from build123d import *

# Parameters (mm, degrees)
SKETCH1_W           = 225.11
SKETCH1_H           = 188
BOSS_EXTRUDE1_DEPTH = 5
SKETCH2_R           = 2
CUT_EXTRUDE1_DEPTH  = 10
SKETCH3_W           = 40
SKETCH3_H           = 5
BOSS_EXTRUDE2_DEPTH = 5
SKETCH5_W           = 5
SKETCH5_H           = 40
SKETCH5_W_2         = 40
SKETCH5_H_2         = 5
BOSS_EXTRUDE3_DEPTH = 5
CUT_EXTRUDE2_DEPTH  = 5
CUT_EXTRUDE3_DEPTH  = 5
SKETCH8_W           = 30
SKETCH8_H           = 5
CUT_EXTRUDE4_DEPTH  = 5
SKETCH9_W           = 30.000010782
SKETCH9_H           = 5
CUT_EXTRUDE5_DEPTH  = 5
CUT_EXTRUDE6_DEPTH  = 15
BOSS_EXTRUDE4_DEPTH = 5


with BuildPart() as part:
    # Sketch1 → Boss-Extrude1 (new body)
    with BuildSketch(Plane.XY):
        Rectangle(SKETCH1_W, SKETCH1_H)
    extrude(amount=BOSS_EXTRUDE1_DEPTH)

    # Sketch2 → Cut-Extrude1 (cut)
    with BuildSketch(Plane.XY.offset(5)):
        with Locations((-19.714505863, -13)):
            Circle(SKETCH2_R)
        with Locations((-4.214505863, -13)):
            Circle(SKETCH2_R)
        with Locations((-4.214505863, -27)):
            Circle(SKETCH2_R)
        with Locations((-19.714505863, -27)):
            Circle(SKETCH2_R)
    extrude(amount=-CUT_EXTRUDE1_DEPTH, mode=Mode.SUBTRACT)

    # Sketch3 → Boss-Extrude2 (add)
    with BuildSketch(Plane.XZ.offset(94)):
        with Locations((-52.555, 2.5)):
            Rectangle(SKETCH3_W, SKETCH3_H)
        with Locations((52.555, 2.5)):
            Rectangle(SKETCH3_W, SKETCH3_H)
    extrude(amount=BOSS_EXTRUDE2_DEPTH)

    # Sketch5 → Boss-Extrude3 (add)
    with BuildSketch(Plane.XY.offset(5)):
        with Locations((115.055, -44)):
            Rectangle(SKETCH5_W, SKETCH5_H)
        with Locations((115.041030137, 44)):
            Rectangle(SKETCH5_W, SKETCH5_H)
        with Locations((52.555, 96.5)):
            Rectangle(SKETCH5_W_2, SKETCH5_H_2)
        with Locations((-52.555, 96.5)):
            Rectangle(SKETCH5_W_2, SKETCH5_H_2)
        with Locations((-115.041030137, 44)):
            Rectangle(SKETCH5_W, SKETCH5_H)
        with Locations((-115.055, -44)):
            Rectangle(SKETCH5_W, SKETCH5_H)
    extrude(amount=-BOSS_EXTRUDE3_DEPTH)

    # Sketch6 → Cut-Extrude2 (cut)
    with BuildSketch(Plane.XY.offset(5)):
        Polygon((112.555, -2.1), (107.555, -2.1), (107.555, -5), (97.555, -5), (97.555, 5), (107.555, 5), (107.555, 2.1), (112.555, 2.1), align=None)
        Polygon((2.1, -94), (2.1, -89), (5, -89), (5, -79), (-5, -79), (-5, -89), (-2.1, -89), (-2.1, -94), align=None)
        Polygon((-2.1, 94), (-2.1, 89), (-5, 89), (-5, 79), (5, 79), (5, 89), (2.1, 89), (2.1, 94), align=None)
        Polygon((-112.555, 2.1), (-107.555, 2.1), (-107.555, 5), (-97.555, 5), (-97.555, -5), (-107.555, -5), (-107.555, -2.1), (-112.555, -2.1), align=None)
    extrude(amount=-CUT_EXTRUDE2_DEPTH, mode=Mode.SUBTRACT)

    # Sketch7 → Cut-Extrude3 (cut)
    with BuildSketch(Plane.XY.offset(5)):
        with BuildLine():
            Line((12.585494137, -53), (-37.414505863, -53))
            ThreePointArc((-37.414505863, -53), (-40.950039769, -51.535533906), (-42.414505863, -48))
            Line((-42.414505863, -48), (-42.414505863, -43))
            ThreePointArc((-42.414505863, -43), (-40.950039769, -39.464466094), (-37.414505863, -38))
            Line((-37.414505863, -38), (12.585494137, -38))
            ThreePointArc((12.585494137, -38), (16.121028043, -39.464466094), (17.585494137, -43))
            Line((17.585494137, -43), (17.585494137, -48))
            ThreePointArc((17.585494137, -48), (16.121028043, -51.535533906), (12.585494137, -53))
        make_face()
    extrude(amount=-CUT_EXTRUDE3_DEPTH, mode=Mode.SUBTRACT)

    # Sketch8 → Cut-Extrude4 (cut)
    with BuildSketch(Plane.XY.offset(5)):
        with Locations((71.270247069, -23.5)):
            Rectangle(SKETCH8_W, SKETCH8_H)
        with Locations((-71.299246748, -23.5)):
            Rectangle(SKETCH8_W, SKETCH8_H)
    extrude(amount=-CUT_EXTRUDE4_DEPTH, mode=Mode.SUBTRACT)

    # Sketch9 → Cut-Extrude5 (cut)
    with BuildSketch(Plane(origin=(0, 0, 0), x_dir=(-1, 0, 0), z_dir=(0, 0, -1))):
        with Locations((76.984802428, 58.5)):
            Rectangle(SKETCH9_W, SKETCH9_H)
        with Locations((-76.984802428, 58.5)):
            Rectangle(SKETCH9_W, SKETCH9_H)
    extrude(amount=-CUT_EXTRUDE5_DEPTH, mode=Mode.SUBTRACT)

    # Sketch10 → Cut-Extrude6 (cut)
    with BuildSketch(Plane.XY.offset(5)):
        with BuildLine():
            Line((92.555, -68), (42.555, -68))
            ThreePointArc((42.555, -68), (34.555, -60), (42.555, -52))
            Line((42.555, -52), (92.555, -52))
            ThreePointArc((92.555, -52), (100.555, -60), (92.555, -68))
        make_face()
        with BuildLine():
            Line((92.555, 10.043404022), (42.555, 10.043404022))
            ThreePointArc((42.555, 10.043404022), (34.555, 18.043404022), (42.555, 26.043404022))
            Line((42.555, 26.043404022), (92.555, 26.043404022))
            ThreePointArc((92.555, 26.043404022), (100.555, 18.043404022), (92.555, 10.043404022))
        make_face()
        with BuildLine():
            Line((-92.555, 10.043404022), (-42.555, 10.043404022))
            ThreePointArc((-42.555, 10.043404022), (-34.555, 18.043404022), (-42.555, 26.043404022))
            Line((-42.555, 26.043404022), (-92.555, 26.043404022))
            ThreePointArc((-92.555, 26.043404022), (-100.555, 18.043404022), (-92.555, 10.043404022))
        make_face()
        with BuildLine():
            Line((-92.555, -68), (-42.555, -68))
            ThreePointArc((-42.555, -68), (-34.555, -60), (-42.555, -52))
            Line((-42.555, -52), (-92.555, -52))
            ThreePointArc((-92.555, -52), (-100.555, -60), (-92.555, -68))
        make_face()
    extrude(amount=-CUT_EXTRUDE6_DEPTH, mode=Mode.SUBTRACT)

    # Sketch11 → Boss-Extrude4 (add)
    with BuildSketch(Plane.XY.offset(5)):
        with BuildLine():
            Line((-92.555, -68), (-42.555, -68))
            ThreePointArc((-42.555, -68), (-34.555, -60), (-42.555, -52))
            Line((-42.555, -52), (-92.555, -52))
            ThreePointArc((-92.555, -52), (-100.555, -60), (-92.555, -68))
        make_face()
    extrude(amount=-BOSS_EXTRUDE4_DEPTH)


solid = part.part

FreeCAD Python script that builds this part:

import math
import FreeCAD as App
import Part
import Sketcher

V = App.Vector

doc = App.newDocument("Part")
params = doc.addObject("Spreadsheet::Sheet", "Params")
for row, (alias, value) in enumerate([
    ("sketch1_height", "188 mm"),
    ("sketch1_width", "225.11 mm"),
    ("pad1_length", "5 mm"),
    ("sketch2_diameter", "4 mm"),
    ("pocket1_length", "10 mm"),
    ("sketch3_width", "40 mm"),
    ("sketch3_height", "5 mm"),
    ("pad2_length", "5 mm"),
    ("sketch4_width", "5 mm"),
    ("sketch4_width2", "40 mm"),
    ("pad3_length", "5 mm"),
    ("sketch5_width", "5 mm"),
    ("sketch5_width2", "10 mm"),
    ("sketch5_width3", "2.9 mm"),
    ("pocket2_length", "5 mm"),
    ("sketch6_radius", "5 mm"),
    ("sketch6_width", "50 mm"),
    ("sketch6_height", "5 mm"),
    ("pocket3_length", "5 mm"),
    ("sketch7_width", "30 mm"),
    ("sketch7_height", "5 mm"),
    ("pocket4_length", "5 mm"),
    ("sketch8_height", "5 mm"),
    ("pocket5_length", "5 mm"),
    ("sketch9_radius", "8 mm"),
    ("sketch9_width", "50 mm"),
    ("pocket6_length", "15 mm"),
    ("sketch10_radius", "8 mm"),
    ("sketch10_width", "50 mm"),
    ("pad4_length", "5 mm"),
], start=1):
    params.set(f"A{row}", alias)
    params.set(f"B{row}", "=" + value)
    params.setAlias(f"B{row}", alias)

body = doc.addObject("PartDesign::Body", "Body")

# Sketch on XY plane
sketch1 = body.newObject("Sketcher::SketchObject", "Sketch")
sketch1.AttachmentSupport = (doc.getObject("XY_Plane"), [""])
sketch1.MapMode = "FlatFace"
sketch1.addGeometry([
    Part.LineSegment(V(-112.555, 94, 0), V(-112.555, -94, 0)),
    Part.LineSegment(V(-112.555, -94, 0), V(112.555, -94, 0)),
    Part.LineSegment(V(112.555, -94, 0), V(112.555, 94, 0)),
    Part.LineSegment(V(112.555, 94, 0), V(-112.555, 94, 0)),
], False)
sketch1.addConstraint([
    Sketcher.Constraint("Coincident", 0, 2, 1, 1),
    Sketcher.Constraint("Coincident", 1, 2, 2, 1),
    Sketcher.Constraint("Coincident", 2, 2, 3, 1),
    Sketcher.Constraint("Coincident", 3, 2, 0, 1),
    Sketcher.Constraint("Vertical", 0),
    Sketcher.Constraint("Horizontal", 1),
    Sketcher.Constraint("Vertical", 2),
    Sketcher.Constraint("Horizontal", 3),
    Sketcher.Constraint("Symmetric", 0, 2, 2, 2, -1, 1),
    Sketcher.Constraint("DistanceY", 0, 2, 0, 1, 188.0),
    Sketcher.Constraint("DistanceX", 1, 1, 1, 2, 225.11),
])
sketch1.setExpression("Constraints[9]", "Params.sketch1_height")
sketch1.setExpression("Constraints[10]", "Params.sketch1_width")
pad1 = body.newObject("PartDesign::Pad", "Pad")
pad1.Profile = sketch1
pad1.setExpression("Length", "Params.pad1_length")

# Sketch on XY plane
sketch2 = body.newObject("Sketcher::SketchObject", "Sketch001")
sketch2.AttachmentSupport = (doc.getObject("XY_Plane"), [""])
sketch2.MapMode = "FlatFace"
sketch2.AttachmentOffset = App.Placement(V(0, 0, 5), App.Rotation())
sketch2.addGeometry([
    Part.Circle(V(-19.714506, -13, 0), V(0, 0, 1), 2),
    Part.Circle(V(-4.214506, -13, 0), V(0, 0, 1), 2),
    Part.Circle(V(-4.214506, -27, 0), V(0, 0, 1), 2),
    Part.Circle(V(-19.714506, -27, 0), V(0, 0, 1), 2),
], False)
sketch2.addConstraint([
    Sketcher.Constraint("Equal", 0, 1),
    Sketcher.Constraint("Equal", 1, 2),
    Sketcher.Constraint("Equal", 2, 3),
    Sketcher.Constraint("Horizontal", 0, 3, 1, 3),
    Sketcher.Constraint("Horizontal", 2, 3, 3, 3),
    Sketcher.Constraint("Vertical", 1, 3, 2, 3),
    Sketcher.Constraint("Vertical", 0, 3, 3, 3),
    Sketcher.Constraint("Diameter", 0, 4.0),
    Sketcher.Constraint("DistanceY", 0, 3, -1, 1, 13.0),
    Sketcher.Constraint("DistanceY", 2, 3, -1, 1, 27.0),
    Sketcher.Constraint("DistanceX", 0, 3, 1, 3, 15.5),
    Sketcher.Constraint("DistanceX", 0, 3, -1, 1, 19.714506),
])
sketch2.setExpression("Constraints[7]", "Params.sketch2_diameter")
pocket1 = body.newObject("PartDesign::Pocket", "Pocket")
pocket1.Profile = sketch2
pocket1.setExpression("Length", "Params.pocket1_length")

# Sketch on XZ plane
sketch3 = body.newObject("Sketcher::SketchObject", "Sketch002")
sketch3.AttachmentSupport = (doc.getObject("XZ_Plane"), [""])
sketch3.MapMode = "FlatFace"
sketch3.AttachmentOffset = App.Placement(V(0, 0, 94), App.Rotation())
sketch3.addGeometry([
    Part.LineSegment(V(-72.555, 5, 0), V(-72.555, 0, 0)),  # 0
    Part.LineSegment(V(-72.555, 0, 0), V(-32.555, 0, 0)),  # 1
    Part.LineSegment(V(-32.555, 0, 0), V(-32.555, 5, 0)),  # 2
    Part.LineSegment(V(-32.555, 5, 0), V(-72.555, 5, 0)),  # 3
    Part.LineSegment(V(32.555, 5, 0), V(32.555, 0, 0)),  # 4
    Part.LineSegment(V(32.555, 0, 0), V(72.555, 0, 0)),  # 5
    Part.LineSegment(V(72.555, 0, 0), V(72.555, 5, 0)),  # 6
    Part.LineSegment(V(72.555, 5, 0), V(32.555, 5, 0)),  # 7
], False)
sketch3.addConstraint([
    Sketcher.Constraint("Coincident", 0, 2, 1, 1),
    Sketcher.Constraint("Coincident", 1, 2, 2, 1),
    Sketcher.Constraint("Coincident", 2, 2, 3, 1),
    Sketcher.Constraint("Coincident", 3, 2, 0, 1),
    Sketcher.Constraint("Coincident", 4, 2, 5, 1),
    Sketcher.Constraint("Coincident", 5, 2, 6, 1),
    Sketcher.Constraint("Coincident", 6, 2, 7, 1),
    Sketcher.Constraint("Coincident", 7, 2, 4, 1),
    Sketcher.Constraint("Vertical", 0),
    Sketcher.Constraint("Horizontal", 1),
    Sketcher.Constraint("Vertical", 2),
    Sketcher.Constraint("Horizontal", 3),
    Sketcher.Constraint("Vertical", 4),
    Sketcher.Constraint("Horizontal", 5),
    Sketcher.Constraint("Vertical", 6),
    Sketcher.Constraint("Horizontal", 7),
    Sketcher.Constraint("Symmetric", 1, 2, 4, 2, -1, 1),
    Sketcher.Constraint("Symmetric", 0, 2, 5, 2, -2),
    Sketcher.Constraint("Horizontal", 3, 2, 6, 2),
    Sketcher.Constraint("DistanceX", 1, 1, 1, 2, 40.0),
    Sketcher.Constraint("DistanceY", 0, 2, 0, 1, 5.0),
    Sketcher.Constraint("DistanceX", 1, 2, 4, 2, 65.11),
])
sketch3.setExpression("Constraints[19]", "Params.sketch3_width")
sketch3.setExpression("Constraints[20]", "Params.sketch3_height")
pad2 = body.newObject("PartDesign::Pad", "Pad001")
pad2.Profile = sketch3
pad2.setExpression("Length", "Params.pad2_length")

# Sketch on XY plane
sketch4 = body.newObject("Sketcher::SketchObject", "Sketch003")
sketch4.AttachmentSupport = (doc.getObject("XY_Plane"), [""])
sketch4.MapMode = "FlatFace"
sketch4.AttachmentOffset = App.Placement(V(0, 0, 5), App.Rotation())
sketch4.addGeometry([
    Part.LineSegment(V(112.555, -24, 0), V(112.555, -64, 0)),  # 0
    Part.LineSegment(V(112.555, -64, 0), V(117.555, -64, 0)),  # 1
    Part.LineSegment(V(117.555, -64, 0), V(117.555, -24, 0)),  # 2
    Part.LineSegment(V(117.555, -24, 0), V(112.555, -24, 0)),  # 3
    Part.LineSegment(V(112.54103, 64, 0), V(112.54103, 24, 0)),  # 4
    Part.LineSegment(V(112.54103, 24, 0), V(117.54103, 24, 0)),  # 5
    Part.LineSegment(V(117.54103, 24, 0), V(117.54103, 64, 0)),  # 6
    Part.LineSegment(V(117.54103, 64, 0), V(112.54103, 64, 0)),  # 7
    Part.LineSegment(V(32.555, 99, 0), V(32.555, 94, 0)),  # 8
    Part.LineSegment(V(32.555, 94, 0), V(72.555, 94, 0)),  # 9
    Part.LineSegment(V(72.555, 94, 0), V(72.555, 99, 0)),  # 10
    Part.LineSegment(V(72.555, 99, 0), V(32.555, 99, 0)),  # 11
    Part.LineSegment(V(-72.555, 99, 0), V(-72.555, 94, 0)),  # 12
    Part.LineSegment(V(-72.555, 94, 0), V(-32.555, 94, 0)),  # 13
    Part.LineSegment(V(-32.555, 94, 0), V(-32.555, 99, 0)),  # 14
    Part.LineSegment(V(-32.555, 99, 0), V(-72.555, 99, 0)),  # 15
    Part.LineSegment(V(-117.54103, 64, 0), V(-117.54103, 24, 0)),  # 16
    Part.LineSegment(V(-117.54103, 24, 0), V(-112.54103, 24, 0)),  # 17
    Part.LineSegment(V(-112.54103, 24, 0), V(-112.54103, 64, 0)),  # 18
    Part.LineSegment(V(-112.54103, 64, 0), V(-117.54103, 64, 0)),  # 19
    Part.LineSegment(V(-117.555, -24, 0), V(-117.555, -64, 0)),  # 20
    Part.LineSegment(V(-117.555, -64, 0), V(-112.555, -64, 0)),  # 21
    Part.LineSegment(V(-112.555, -64, 0), V(-112.555, -24, 0)),  # 22
    Part.LineSegment(V(-112.555, -24, 0), V(-117.555, -24, 0)),  # 23
], False)
sketch4.addConstraint([
    Sketcher.Constraint("Coincident", 0, 2, 1, 1),
    Sketcher.Constraint("Coincident", 1, 2, 2, 1),
    Sketcher.Constraint("Coincident", 2, 2, 3, 1),
    Sketcher.Constraint("Coincident", 3, 2, 0, 1),
    Sketcher.Constraint("Coincident", 4, 2, 5, 1),
    Sketcher.Constraint("Coincident", 5, 2, 6, 1),
    Sketcher.Constraint("Coincident", 6, 2, 7, 1),
    Sketcher.Constraint("Coincident", 7, 2, 4, 1),
    Sketcher.Constraint("Coincident", 8, 2, 9, 1),
    Sketcher.Constraint("Coincident", 9, 2, 10, 1),
    Sketcher.Constraint("Coincident", 10, 2, 11, 1),
    Sketcher.Constraint("Coincident", 11, 2, 8, 1),
    Sketcher.Constraint("Coincident", 12, 2, 13, 1),
    Sketcher.Constraint("Coincident", 13, 2, 14, 1),
    Sketcher.Constraint("Coincident", 14, 2, 15, 1),
    Sketcher.Constraint("Coincident", 15, 2, 12, 1),
    Sketcher.Constraint("Coincident", 16, 2, 17, 1),
    Sketcher.Constraint("Coincident", 17, 2, 18, 1),
    Sketcher.Constraint("Coincident", 18, 2, 19, 1),
    Sketcher.Constraint("Coincident", 19, 2, 16, 1),
    Sketcher.Constraint("Coincident", 20, 2, 21, 1),
    Sketcher.Constraint("Coincident", 21, 2, 22, 1),
    Sketcher.Constraint("Coincident", 22, 2, 23, 1),
    Sketcher.Constraint("Coincident", 23, 2, 20, 1),
    Sketcher.Constraint("Vertical", 0),
    Sketcher.Constraint("Horizontal", 1),
    Sketcher.Constraint("Vertical", 2),
    Sketcher.Constraint("Horizontal", 3),
    Sketcher.Constraint("Vertical", 4),
    Sketcher.Constraint("Horizontal", 5),
    Sketcher.Constraint("Vertical", 6),
    Sketcher.Constraint("Horizontal", 7),
    Sketcher.Constraint("Vertical", 8),
    Sketcher.Constraint("Horizontal", 9),
    Sketcher.Constraint("Vertical", 10),
    Sketcher.Constraint("Horizontal", 11),
    Sketcher.Constraint("Vertical", 12),
    Sketcher.Constraint("Horizontal", 13),
    Sketcher.Constraint("Vertical", 14),
    Sketcher.Constraint("Horizontal", 15),
    Sketcher.Constraint("Vertical", 16),
    Sketcher.Constraint("Horizontal", 17),
    Sketcher.Constraint("Vertical", 18),
    Sketcher.Constraint("Horizontal", 19),
    Sketcher.Constraint("Vertical", 20),
    Sketcher.Constraint("Horizontal", 21),
    Sketcher.Constraint("Vertical", 22),
    Sketcher.Constraint("Horizontal", 23),
    Sketcher.Constraint("Symmetric", 9, 2, 12, 2, -2),
    Sketcher.Constraint("Symmetric", 11, 2, 14, 2, -2),
    Sketcher.Constraint("Symmetric", 5, 2, 16, 2, -2),
    Sketcher.Constraint("Symmetric", 7, 2, 18, 2, -2),
    Sketcher.Constraint("Symmetric", 1, 2, 20, 2, -2),
    Sketcher.Constraint("Symmetric", 3, 2, 22, 2, -2),
    Sketcher.Constraint("Equal", 3, 5),
    Sketcher.Constraint("Equal", 15, 0),
    Sketcher.Constraint("Equal", 2, 4),
    Sketcher.Constraint("Equal", 23, 8),
    Sketcher.Constraint("DistanceX", 1, 1, 1, 2, 5.0),
    Sketcher.Constraint("DistanceX", 9, 1, 9, 2, 40.0),
    Sketcher.Constraint("DistanceY", 0, 2, -1, 1, 64.0),
    Sketcher.Constraint("DistanceY", -1, 1, 4, 2, 24.0),
    Sketcher.Constraint("DistanceY", -1, 1, 8, 2, 94.0),
    Sketcher.Constraint("DistanceX", 8, 2, 3, 2, 80.0),
    Sketcher.Constraint("DistanceX", 12, 2, 8, 2, 105.11),
    Sketcher.Constraint("DistanceX", -1, 1, 4, 2, 112.54103),
])
sketch4.setExpression("Constraints[58]", "Params.sketch4_width")
sketch4.setExpression("Constraints[59]", "Params.sketch4_width2")
pad3 = body.newObject("PartDesign::Pad", "Pad002")
pad3.Profile = sketch4
pad3.setExpression("Length", "Params.pad3_length")
pad3.Reversed = True

# Sketch on XY plane
sketch5 = body.newObject("Sketcher::SketchObject", "Sketch004")
sketch5.AttachmentSupport = (doc.getObject("XY_Plane"), [""])
sketch5.MapMode = "FlatFace"
sketch5.AttachmentOffset = App.Placement(V(0, 0, 5), App.Rotation())
sketch5.addGeometry([
    Part.LineSegment(V(107.555, -2.1, 0), V(112.555, -2.1, 0)),  # 0
    Part.LineSegment(V(112.555, -2.1, 0), V(112.555, 2.1, 0)),  # 1
    Part.LineSegment(V(112.555, 2.1, 0), V(107.555, 2.1, 0)),  # 2
    Part.LineSegment(V(107.555, 2.1, 0), V(107.555, 5, 0)),  # 3
    Part.LineSegment(V(107.555, 5, 0), V(97.555, 5, 0)),  # 4
    Part.LineSegment(V(97.555, 5, 0), V(97.555, -5, 0)),  # 5
    Part.LineSegment(V(97.555, -5, 0), V(107.555, -5, 0)),  # 6
    Part.LineSegment(V(107.555, -5, 0), V(107.555, -2.1, 0)),  # 7
    Part.LineSegment(V(2.1, -94, 0), V(2.1, -89, 0)),  # 8
    Part.LineSegment(V(2.1, -89, 0), V(5, -89, 0)),  # 9
    Part.LineSegment(V(5, -89, 0), V(5, -79, 0)),  # 10
    Part.LineSegment(V(5, -79, 0), V(-5, -79, 0)),  # 11
    Part.LineSegment(V(-5, -79, 0), V(-5, -89, 0)),  # 12
    Part.LineSegment(V(-5, -89, 0), V(-2.1, -89, 0)),  # 13
    Part.LineSegment(V(-2.1, -89, 0), V(-2.1, -94, 0)),  # 14
    Part.LineSegment(V(-2.1, -94, 0), V(2.1, -94, 0)),  # 15
    Part.LineSegment(V(-2.1, 94, 0), V(-2.1, 89, 0)),  # 16
    Part.LineSegment(V(-2.1, 89, 0), V(-5, 89, 0)),  # 17
    Part.LineSegment(V(-5, 89, 0), V(-5, 79, 0)),  # 18
    Part.LineSegment(V(-5, 79, 0), V(5, 79, 0)),  # 19
    Part.LineSegment(V(5, 79, 0), V(5, 89, 0)),  # 20
    Part.LineSegment(V(5, 89, 0), V(2.1, 89, 0)),  # 21
    Part.LineSegment(V(2.1, 89, 0), V(2.1, 94, 0)),  # 22
    Part.LineSegment(V(2.1, 94, 0), V(-2.1, 94, 0)),  # 23
    Part.LineSegment(V(-107.555, 2.1, 0), V(-112.555, 2.1, 0)),  # 24
    Part.LineSegment(V(-112.555, 2.1, 0), V(-112.555, -2.1, 0)),  # 25
    Part.LineSegment(V(-112.555, -2.1, 0), V(-107.555, -2.1, 0)),  # 26
    Part.LineSegment(V(-107.555, -2.1, 0), V(-107.555, -5, 0)),  # 27
    Part.LineSegment(V(-107.555, -5, 0), V(-97.555, -5, 0)),  # 28
    Part.LineSegment(V(-97.555, -5, 0), V(-97.555, 5, 0)),  # 29
    Part.LineSegment(V(-97.555, 5, 0), V(-107.555, 5, 0)),  # 30
    Part.LineSegment(V(-107.555, 5, 0), V(-107.555, 2.1, 0)),  # 31
], False)
sketch5.addConstraint([
    Sketcher.Constraint("Coincident", 0, 2, 1, 1),
    Sketcher.Constraint("Coincident", 1, 2, 2, 1),
    Sketcher.Constraint("Coincident", 2, 2, 3, 1),
    Sketcher.Constraint("Coincident", 3, 2, 4, 1),
    Sketcher.Constraint("Coincident", 4, 2, 5, 1),
    Sketcher.Constraint("Coincident", 5, 2, 6, 1),
    Sketcher.Constraint("Coincident", 6, 2, 7, 1),
    Sketcher.Constraint("Coincident", 7, 2, 0, 1),
    Sketcher.Constraint("Coincident", 8, 2, 9, 1),
    Sketcher.Constraint("Coincident", 9, 2, 10, 1),
    Sketcher.Constraint("Coincident", 10, 2, 11, 1),
    Sketcher.Constraint("Coincident", 11, 2, 12, 1),
    Sketcher.Constraint("Coincident", 12, 2, 13, 1),
    Sketcher.Constraint("Coincident", 13, 2, 14, 1),
    Sketcher.Constraint("Coincident", 14, 2, 15, 1),
    Sketcher.Constraint("Coincident", 15, 2, 8, 1),
    Sketcher.Constraint("Coincident", 16, 2, 17, 1),
    Sketcher.Constraint("Coincident", 17, 2, 18, 1),
    Sketcher.Constraint("Coincident", 18, 2, 19, 1),
    Sketcher.Constraint("Coincident", 19, 2, 20, 1),
    Sketcher.Constraint("Coincident", 20, 2, 21, 1),
    Sketcher.Constraint("Coincident", 21, 2, 22, 1),
    Sketcher.Constraint("Coincident", 22, 2, 23, 1),
    Sketcher.Constraint("Coincident", 23, 2, 16, 1),
    Sketcher.Constraint("Coincident", 24, 2, 25, 1),
    Sketcher.Constraint("Coincident", 25, 2, 26, 1),
    Sketcher.Constraint("Coincident", 26, 2, 27, 1),
    Sketcher.Constraint("Coincident", 27, 2, 28, 1),
    Sketcher.Constraint("Coincident", 28, 2, 29, 1),
    Sketcher.Constraint("Coincident", 29, 2, 30, 1),
    Sketcher.Constraint("Coincident", 30, 2, 31, 1),
    Sketcher.Constraint("Coincident", 31, 2, 24, 1),
    Sketcher.Constraint("Horizontal", 0),
    Sketcher.Constraint("Vertical", 1),
    Sketcher.Constraint("Horizontal", 2),
    Sketcher.Constraint("Vertical", 3),
    Sketcher.Constraint("Horizontal", 4),
    Sketcher.Constraint("Vertical", 5),
    Sketcher.Constraint("Horizontal", 6),
    Sketcher.Constraint("Vertical", 7),
    Sketcher.Constraint("Vertical", 8),
    Sketcher.Constraint("Horizontal", 9),
    Sketcher.Constraint("Vertical", 10),
    Sketcher.Constraint("Horizontal", 11),
    Sketcher.Constraint("Vertical", 12),
    Sketcher.Constraint("Horizontal", 13),
    Sketcher.Constraint("Vertical", 14),
    Sketcher.Constraint("Horizontal", 15),
    Sketcher.Constraint("Vertical", 16),
    Sketcher.Constraint("Horizontal", 17),
    Sketcher.Constraint("Vertical", 18),
    Sketcher.Constraint("Horizontal", 19),
    Sketcher.Constraint("Vertical", 20),
    Sketcher.Constraint("Horizontal", 21),
    Sketcher.Constraint("Vertical", 22),
    Sketcher.Constraint("Horizontal", 23),
    Sketcher.Constraint("Horizontal", 24),
    Sketcher.Constraint("Vertical", 25),
    Sketcher.Constraint("Horizontal", 26),
    Sketcher.Constraint("Vertical", 27),
    Sketcher.Constraint("Horizontal", 28),
    Sketcher.Constraint("Vertical", 29),
    Sketcher.Constraint("Horizontal", 30),
    Sketcher.Constraint("Vertical", 31),
    Sketcher.Constraint("Symmetric", 8, 2, 16, 2, -1, 1),
    Sketcher.Constraint("Symmetric", 10, 2, 18, 2, -1, 1),
    Sketcher.Constraint("Symmetric", 12, 2, 20, 2, -1, 1),
    Sketcher.Constraint("Symmetric", 14, 2, 22, 2, -1, 1),
    Sketcher.Constraint("Symmetric", 0, 2, 24, 2, -1, 1),
    Sketcher.Constraint("Symmetric", 2, 2, 26, 2, -1, 1),
    Sketcher.Constraint("Symmetric", 4, 2, 28, 2, -1, 1),
    Sketcher.Constraint("Symmetric", 6, 2, 30, 2, -1, 1),
    Sketcher.Constraint("Symmetric", 9, 2, 12, 2, -2),
    Sketcher.Constraint("Symmetric", 7, 2, 26, 2, -2),
    Sketcher.Constraint("Horizontal", 6, 2, 27, 2),
    Sketcher.Constraint("Vertical", 14, 2, 16, 2),
    Sketcher.Constraint("Equal", 6, 11),
    Sketcher.Constraint("Equal", 23, 1),
    Sketcher.Constraint("Equal", 21, 3),
    Sketcher.Constraint("Equal", 26, 8),
    Sketcher.Constraint("Equal", 5, 10),
    Sketcher.Constraint("DistanceX", 0, 1, 0, 2, 5.0),
    Sketcher.Constraint("DistanceX", 4, 2, 4, 1, 10.0),
    Sketcher.Constraint("DistanceX", 9, 1, 9, 2, 2.9),
    Sketcher.Constraint("DistanceY", 8, 2, -1, 1, 89.0),
    Sketcher.Constraint("DistanceX", -1, 1, 0, 2, 112.555),
])
sketch5.setExpression("Constraints[81]", "Params.sketch5_width")
sketch5.setExpression("Constraints[82]", "Params.sketch5_width2")
sketch5.setExpression("Constraints[83]", "Params.sketch5_width3")
pocket2 = body.newObject("PartDesign::Pocket", "Pocket001")
pocket2.Profile = sketch5
pocket2.setExpression("Length", "Params.pocket2_length")

# Sketch on XY plane
sketch6 = body.newObject("Sketcher::SketchObject", "Sketch005")
sketch6.AttachmentSupport = (doc.getObject("XY_Plane"), [""])
sketch6.MapMode = "FlatFace"
sketch6.AttachmentOffset = App.Placement(V(0, 0, 5), App.Rotation())
sketch6.addGeometry([
    Part.LineSegment(V(-37.414506, -53, 0), V(12.585494, -53, 0)),  # 0
    Part.ArcOfCircle(Part.Circle(V(12.585494, -48, 0), V(0, 0, 1), 5), math.radians(-90), math.radians(0)),  # 1
    Part.LineSegment(V(17.585494, -48, 0), V(17.585494, -43, 0)),  # 2
    Part.ArcOfCircle(Part.Circle(V(12.585494, -43, 0), V(0, 0, 1), 5), math.radians(0), math.radians(90)),  # 3
    Part.LineSegment(V(12.585494, -38, 0), V(-37.414506, -38, 0)),  # 4
    Part.ArcOfCircle(Part.Circle(V(-37.414506, -43, 0), V(0, 0, 1), 5), math.radians(90), math.radians(180)),  # 5
    Part.LineSegment(V(-42.414506, -43, 0), V(-42.414506, -48, 0)),  # 6
    Part.ArcOfCircle(Part.Circle(V(-37.414506, -48, 0), V(0, 0, 1), 5), math.radians(180), math.radians(270)),  # 7
], False)
sketch6.addConstraint([
    Sketcher.Constraint("Tangent", 0, 2, 1, 1),
    Sketcher.Constraint("Tangent", 1, 2, 2, 1),
    Sketcher.Constraint("Tangent", 2, 2, 3, 1),
    Sketcher.Constraint("Tangent", 3, 2, 4, 1),
    Sketcher.Constraint("Tangent", 4, 2, 5, 1),
    Sketcher.Constraint("Tangent", 5, 2, 6, 1),
    Sketcher.Constraint("Tangent", 6, 2, 7, 1),
    Sketcher.Constraint("Tangent", 7, 2, 0, 1),
    Sketcher.Constraint("Horizontal", 0),
    Sketcher.Constraint("Vertical", 2),
    Sketcher.Constraint("Horizontal", 4),
    Sketcher.Constraint("Vertical", 6),
    Sketcher.Constraint("Equal", 1, 3),
    Sketcher.Constraint("Equal", 3, 5),
    Sketcher.Constraint("Equal", 5, 7),
    Sketcher.Constraint("Radius", 1, 5.0),
    Sketcher.Constraint("DistanceX", 0, 1, 0, 2, 50.0),
    Sketcher.Constraint("DistanceY", 2, 1, 2, 2, 5.0),
    Sketcher.Constraint("DistanceY", 1, 3, -1, 1, 48.0),
    Sketcher.Constraint("DistanceX", -1, 1, 1, 3, 12.585494),
])
sketch6.setExpression("Constraints[15]", "Params.sketch6_radius")
sketch6.setExpression("Constraints[16]", "Params.sketch6_width")
sketch6.setExpression("Constraints[17]", "Params.sketch6_height")
pocket3 = body.newObject("PartDesign::Pocket", "Pocket002")
pocket3.Profile = sketch6
pocket3.setExpression("Length", "Params.pocket3_length")

# Sketch on XY plane
sketch7 = body.newObject("Sketcher::SketchObject", "Sketch006")
sketch7.AttachmentSupport = (doc.getObject("XY_Plane"), [""])
sketch7.MapMode = "FlatFace"
sketch7.AttachmentOffset = App.Placement(V(0, 0, 5), App.Rotation())
sketch7.addGeometry([
    Part.LineSegment(V(56.270247, -21, 0), V(56.270247, -26, 0)),  # 0
    Part.LineSegment(V(56.270247, -26, 0), V(86.270247, -26, 0)),  # 1
    Part.LineSegment(V(86.270247, -26, 0), V(86.270247, -21, 0)),  # 2
    Part.LineSegment(V(86.270247, -21, 0), V(56.270247, -21, 0)),  # 3
    Part.LineSegment(V(-86.299247, -21, 0), V(-86.299247, -26, 0)),  # 4
    Part.LineSegment(V(-86.299247, -26, 0), V(-56.299247, -26, 0)),  # 5
    Part.LineSegment(V(-56.299247, -26, 0), V(-56.299247, -21, 0)),  # 6
    Part.LineSegment(V(-56.299247, -21, 0), V(-86.299247, -21, 0)),  # 7
], False)
sketch7.addConstraint([
    Sketcher.Constraint("Coincident", 0, 2, 1, 1),
    Sketcher.Constraint("Coincident", 1, 2, 2, 1),
    Sketcher.Constraint("Coincident", 2, 2, 3, 1),
    Sketcher.Constraint("Coincident", 3, 2, 0, 1),
    Sketcher.Constraint("Coincident", 4, 2, 5, 1),
    Sketcher.Constraint("Coincident", 5, 2, 6, 1),
    Sketcher.Constraint("Coincident", 6, 2, 7, 1),
    Sketcher.Constraint("Coincident", 7, 2, 4, 1),
    Sketcher.Constraint("Vertical", 0),
    Sketcher.Constraint("Horizontal", 1),
    Sketcher.Constraint("Vertical", 2),
    Sketcher.Constraint("Horizontal", 3),
    Sketcher.Constraint("Vertical", 4),
    Sketcher.Constraint("Horizontal", 5),
    Sketcher.Constraint("Vertical", 6),
    Sketcher.Constraint("Horizontal", 7),
    Sketcher.Constraint("Horizontal", 1, 2, 4, 2),
    Sketcher.Constraint("Horizontal", 3, 2, 6, 2),
    Sketcher.Constraint("Equal", 3, 5),
    Sketcher.Constraint("DistanceX", 1, 1, 1, 2, 30.0),
    Sketcher.Constraint("DistanceY", 0, 2, 0, 1, 5.0),
    Sketcher.Constraint("DistanceY", 0, 2, -1, 1, 26.0),
    Sketcher.Constraint("DistanceX", -1, 1, 0, 2, 56.270247),
    Sketcher.Constraint("DistanceX", 4, 2, -1, 1, 86.299247),
])
sketch7.setExpression("Constraints[19]", "Params.sketch7_width")
sketch7.setExpression("Constraints[20]", "Params.sketch7_height")
pocket4 = body.newObject("PartDesign::Pocket", "Pocket003")
pocket4.Profile = sketch7
pocket4.setExpression("Length", "Params.pocket4_length")

# Sketch on XY plane
sketch8 = body.newObject("Sketcher::SketchObject", "Sketch007")
sketch8.AttachmentSupport = (doc.getObject("XY_Plane"), [""])
sketch8.MapMode = "FlatFace"
sketch8.addGeometry([
    Part.LineSegment(V(-61.984797, 61, 0), V(-61.984797, 56, 0)),  # 0
    Part.LineSegment(V(-61.984797, 56, 0), V(-91.984808, 56, 0)),  # 1
    Part.LineSegment(V(-91.984808, 56, 0), V(-91.984808, 61, 0)),  # 2
    Part.LineSegment(V(-91.984808, 61, 0), V(-61.984797, 61, 0)),  # 3
    Part.LineSegment(V(91.984808, 61, 0), V(91.984808, 56, 0)),  # 4
    Part.LineSegment(V(91.984808, 56, 0), V(61.984797, 56, 0)),  # 5
    Part.LineSegment(V(61.984797, 56, 0), V(61.984797, 61, 0)),  # 6
    Part.LineSegment(V(61.984797, 61, 0), V(91.984808, 61, 0)),  # 7
], False)
sketch8.addConstraint([
    Sketcher.Constraint("Coincident", 0, 2, 1, 1),
    Sketcher.Constraint("Coincident", 1, 2, 2, 1),
    Sketcher.Constraint("Coincident", 2, 2, 3, 1),
    Sketcher.Constraint("Coincident", 3, 2, 0, 1),
    Sketcher.Constraint("Coincident", 4, 2, 5, 1),
    Sketcher.Constraint("Coincident", 5, 2, 6, 1),
    Sketcher.Constraint("Coincident", 6, 2, 7, 1),
    Sketcher.Constraint("Coincident", 7, 2, 4, 1),
    Sketcher.Constraint("Vertical", 0),
    Sketcher.Constraint("Horizontal", 1),
    Sketcher.Constraint("Vertical", 2),
    Sketcher.Constraint("Horizontal", 3),
    Sketcher.Constraint("Vertical", 4),
    Sketcher.Constraint("Horizontal", 5),
    Sketcher.Constraint("Vertical", 6),
    Sketcher.Constraint("Horizontal", 7),
    Sketcher.Constraint("Symmetric", 1, 2, 4, 2, -2),
    Sketcher.Constraint("Symmetric", 3, 2, 6, 2, -2),
    Sketcher.Constraint("DistanceY", 0, 2, 0, 1, 5.0),
    Sketcher.Constraint("DistanceY", -1, 1, 0, 2, 56.0),
    Sketcher.Constraint("DistanceX", 1, 2, 1, 1, 30.000011),
    Sketcher.Constraint("DistanceX", 0, 2, -1, 1, 61.984797),
])
sketch8.setExpression("Constraints[18]", "Params.sketch8_height")
pocket5 = body.newObject("PartDesign::Pocket", "Pocket004")
pocket5.Profile = sketch8
pocket5.setExpression("Length", "Params.pocket5_length")
pocket5.Reversed = True

# Sketch on XY plane
sketch9 = body.newObject("Sketcher::SketchObject", "Sketch008")
sketch9.AttachmentSupport = (doc.getObject("XY_Plane"), [""])
sketch9.MapMode = "FlatFace"
sketch9.AttachmentOffset = App.Placement(V(0, 0, 5), App.Rotation())
sketch9.addGeometry([
    Part.LineSegment(V(42.555, -68, 0), V(92.555, -68, 0)),  # 0
    Part.ArcOfCircle(Part.Circle(V(92.555, -60, 0), V(0, 0, 1), 8), math.radians(-90), math.radians(90)),  # 1
    Part.LineSegment(V(92.555, -52, 0), V(42.555, -52, 0)),  # 2
    Part.ArcOfCircle(Part.Circle(V(42.555, -60, 0), V(0, 0, 1), 8), math.radians(90), math.radians(270)),  # 3
    Part.LineSegment(V(42.555, 10.043404, 0), V(92.555, 10.043404, 0)),  # 4
    Part.ArcOfCircle(Part.Circle(V(92.555, 18.043404, 0), V(0, 0, 1), 8), math.radians(-90), math.radians(90)),  # 5
    Part.LineSegment(V(92.555, 26.043404, 0), V(42.555, 26.043404, 0)),  # 6
    Part.ArcOfCircle(Part.Circle(V(42.555, 18.043404, 0), V(0, 0, 1), 8), math.radians(90), math.radians(270)),  # 7
    Part.LineSegment(V(-92.555, 10.043404, 0), V(-42.555, 10.043404, 0)),  # 8
    Part.ArcOfCircle(Part.Circle(V(-42.555, 18.043404, 0), V(0, 0, 1), 8), math.radians(-90), math.radians(90)),  # 9
    Part.LineSegment(V(-42.555, 26.043404, 0), V(-92.555, 26.043404, 0)),  # 10
    Part.ArcOfCircle(Part.Circle(V(-92.555, 18.043404, 0), V(0, 0, 1), 8), math.radians(90), math.radians(270)),  # 11
    Part.LineSegment(V(-92.555, -68, 0), V(-42.555, -68, 0)),  # 12
    Part.ArcOfCircle(Part.Circle(V(-42.555, -60, 0), V(0, 0, 1), 8), math.radians(-90), math.radians(90)),  # 13
    Part.LineSegment(V(-42.555, -52, 0), V(-92.555, -52, 0)),  # 14
    Part.ArcOfCircle(Part.Circle(V(-92.555, -60, 0), V(0, 0, 1), 8), math.radians(90), math.radians(270)),  # 15
], False)
sketch9.addConstraint([
    Sketcher.Constraint("Tangent", 0, 2, 1, 1),
    Sketcher.Constraint("Tangent", 1, 2, 2, 1),
    Sketcher.Constraint("Tangent", 2, 2, 3, 1),
    Sketcher.Constraint("Tangent", 3, 2, 0, 1),
    Sketcher.Constraint("Tangent", 4, 2, 5, 1),
    Sketcher.Constraint("Tangent", 5, 2, 6, 1),
    Sketcher.Constraint("Tangent", 6, 2, 7, 1),
    Sketcher.Constraint("Tangent", 7, 2, 4, 1),
    Sketcher.Constraint("Tangent", 8, 2, 9, 1),
    Sketcher.Constraint("Tangent", 9, 2, 10, 1),
    Sketcher.Constraint("Tangent", 10, 2, 11, 1),
    Sketcher.Constraint("Tangent", 11, 2, 8, 1),
    Sketcher.Constraint("Tangent", 12, 2, 13, 1),
    Sketcher.Constraint("Tangent", 13, 2, 14, 1),
    Sketcher.Constraint("Tangent", 14, 2, 15, 1),
    Sketcher.Constraint("Tangent", 15, 2, 12, 1),
    Sketcher.Constraint("Horizontal", 0),
    Sketcher.Constraint("Horizontal", 2),
    Sketcher.Constraint("Horizontal", 4),
    Sketcher.Constraint("Horizontal", 6),
    Sketcher.Constraint("Horizontal", 8),
    Sketcher.Constraint("Horizontal", 10),
    Sketcher.Constraint("Horizontal", 12),
    Sketcher.Constraint("Horizontal", 14),
    Sketcher.Constraint("Equal", 3, 5),
    Sketcher.Constraint("Equal", 7, 9),
    Sketcher.Constraint("Equal", 11, 13),
    Sketcher.Constraint("Symmetric", 7, 3, 9, 3, -2),
    Sketcher.Constraint("Symmetric", 3, 3, 13, 3, -2),
    Sketcher.Constraint("Vertical", 1, 3, 5, 3),
    Sketcher.Constraint("Vertical", 3, 3, 7, 3),
    Sketcher.Constraint("Vertical", 11, 3, 15, 3),
    Sketcher.Constraint("Equal", 6, 8),
    Sketcher.Constraint("Radius", 1, 8.0),
    Sketcher.Constraint("DistanceX", 0, 1, 0, 2, 50.0),
    Sketcher.Constraint("DistanceY", 1, 3, -1, 1, 60.0),
    Sketcher.Constraint("DistanceX", 9, 3, 7, 3, 85.11),
    Sketcher.Constraint("DistanceY", -1, 1, 5, 3, 18.043404),
])
sketch9.setExpression("Constraints[33]", "Params.sketch9_radius")
sketch9.setExpression("Constraints[34]", "Params.sketch9_width")
pocket6 = body.newObject("PartDesign::Pocket", "Pocket005")
pocket6.Profile = sketch9
pocket6.setExpression("Length", "Params.pocket6_length")

# Sketch on XY plane
sketch10 = body.newObject("Sketcher::SketchObject", "Sketch009")
sketch10.AttachmentSupport = (doc.getObject("XY_Plane"), [""])
sketch10.MapMode = "FlatFace"
sketch10.AttachmentOffset = App.Placement(V(0, 0, 5), App.Rotation())
sketch10.addGeometry([
    Part.LineSegment(V(-92.555, -68, 0), V(-42.555, -68, 0)),
    Part.ArcOfCircle(Part.Circle(V(-42.555, -60, 0), V(0, 0, 1), 8), math.radians(-90), math.radians(90)),
    Part.LineSegment(V(-42.555, -52, 0), V(-92.555, -52, 0)),
    Part.ArcOfCircle(Part.Circle(V(-92.555, -60, 0), V(0, 0, 1), 8), math.radians(90), math.radians(270)),
], False)
sketch10.addConstraint([
    Sketcher.Constraint("Tangent", 0, 2, 1, 1),
    Sketcher.Constraint("Tangent", 1, 2, 2, 1),
    Sketcher.Constraint("Tangent", 2, 2, 3, 1),
    Sketcher.Constraint("Tangent", 3, 2, 0, 1),
    Sketcher.Constraint("Horizontal", 0),
    Sketcher.Constraint("Horizontal", 2),
    Sketcher.Constraint("Radius", 1, 8.0),
    Sketcher.Constraint("DistanceX", 0, 1, 0, 2, 50.0),
    Sketcher.Constraint("DistanceY", 1, 3, -1, 1, 60.0),
    Sketcher.Constraint("DistanceX", 1, 3, -1, 1, 42.555),
])
sketch10.setExpression("Constraints[6]", "Params.sketch10_radius")
sketch10.setExpression("Constraints[7]", "Params.sketch10_width")
pad4 = body.newObject("PartDesign::Pad", "Pad003")
pad4.Profile = sketch10
pad4.setExpression("Length", "Params.pad4_length")
pad4.Reversed = True

doc.recompute()
